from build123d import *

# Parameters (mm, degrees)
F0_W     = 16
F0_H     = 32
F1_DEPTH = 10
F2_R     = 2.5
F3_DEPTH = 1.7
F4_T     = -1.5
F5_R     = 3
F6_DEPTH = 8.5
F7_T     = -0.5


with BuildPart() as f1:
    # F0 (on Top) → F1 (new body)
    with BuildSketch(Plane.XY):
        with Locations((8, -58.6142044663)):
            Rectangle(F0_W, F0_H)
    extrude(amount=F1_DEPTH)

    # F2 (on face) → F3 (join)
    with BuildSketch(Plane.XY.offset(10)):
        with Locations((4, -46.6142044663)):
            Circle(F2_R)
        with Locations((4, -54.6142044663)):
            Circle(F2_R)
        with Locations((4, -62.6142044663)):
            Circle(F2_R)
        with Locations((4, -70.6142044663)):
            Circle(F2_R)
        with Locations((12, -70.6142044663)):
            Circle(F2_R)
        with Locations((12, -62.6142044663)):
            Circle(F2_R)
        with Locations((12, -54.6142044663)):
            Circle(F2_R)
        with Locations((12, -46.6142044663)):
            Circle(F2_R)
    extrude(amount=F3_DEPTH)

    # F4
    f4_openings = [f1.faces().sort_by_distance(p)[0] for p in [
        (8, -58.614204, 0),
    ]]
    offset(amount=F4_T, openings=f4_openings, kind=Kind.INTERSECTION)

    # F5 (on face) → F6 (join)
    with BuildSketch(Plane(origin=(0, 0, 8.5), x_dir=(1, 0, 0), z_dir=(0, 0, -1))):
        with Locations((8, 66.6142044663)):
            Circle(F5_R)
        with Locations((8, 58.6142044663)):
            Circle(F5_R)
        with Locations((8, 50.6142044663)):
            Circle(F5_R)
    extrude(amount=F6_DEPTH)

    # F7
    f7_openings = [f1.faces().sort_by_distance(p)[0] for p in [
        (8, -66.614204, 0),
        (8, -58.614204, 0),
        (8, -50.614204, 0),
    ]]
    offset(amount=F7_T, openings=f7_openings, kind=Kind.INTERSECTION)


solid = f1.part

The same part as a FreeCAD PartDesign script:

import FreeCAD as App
import Part
import Sketcher
from FreeCAD import Vector


def faces_at(feature, points):
    """Names of the faces that lie closest to the given points."""
    faces = feature.Shape.Faces
    near = lambda p: min(range(len(faces)), key=lambda i: faces[i].distToShape(Part.Vertex(*p))[0])
    return sorted({f"Face{near(p) + 1}" for p in points})


def add_polygon(sketch, points):
    """Adds a closed chain of lines whose ends are joined by coincident constraints."""
    first, n = sketch.GeometryCount, len(points)
    for a, b in zip(points, points[1:] + points[:1]):
        sketch.addGeometry(Part.LineSegment(App.Vector(*a, 0), App.Vector(*b, 0)), False)
    for i in range(n):
        sketch.addConstraint(Sketcher.Constraint("Coincident", first + i, 2, first + (i + 1) % n, 1))

doc = App.newDocument("Part")
params = doc.addObject("Spreadsheet::Sheet", "Params")
for row, (alias, value) in enumerate([
    ("sketch1_width", "16 mm"),
    ("sketch1_height", "32 mm"),
    ("pad1_length", "10 mm"),
    ("sketch2_diameter", "5 mm"),
    ("pad2_length", "1.7 mm"),
    ("thickness_wall", "1.5 mm"),
    ("sketch3_diameter", "6 mm"),
    ("pad3_length", "8.5 mm"),
    ("thickness2_wall", "0.5 mm"),
], start=1):
    params.set(f"A{row}", alias)
    params.set(f"B{row}", "=" + value)
    params.setAlias(f"B{row}", alias)

body = doc.addObject("PartDesign::Body", "Body")

# Sketch on XY plane
sketch1 = body.newObject("Sketcher::SketchObject", "Sketch")
sketch1.AttachmentSupport = (doc.getObject("XY_Plane"), [""])
sketch1.MapMode = "FlatFace"
add_polygon(sketch1, [(0, -43), (0, -75), (16, -75), (16, -43)])  # lines 0-3
sketch1.addConstraint([
    Sketcher.Constraint("Vertical", 0),
    Sketcher.Constraint("Horizontal", 1),
    Sketcher.Constraint("Vertical", 2),
    Sketcher.Constraint("Horizontal", 3),
    Sketcher.Constraint("PointOnObject", 0, 2, -2),
    Sketcher.Constraint("DistanceX", 1, 1, 1, 2, 16.0),
    Sketcher.Constraint("DistanceY", 0, 2, 0, 1, 32.0),
    Sketcher.Constraint("DistanceY", 0, 2, -1, 1, 74.614204),
])
sketch1.setExpression("Constraints[9]", "Params.sketch1_width")
sketch1.setExpression("Constraints[10]", "Params.sketch1_height")
pad1 = body.newObject("PartDesign::Pad", "Pad")
pad1.Profile = sketch1
pad1.setExpression("Length", "Params.pad1_length")

# Sketch on XY plane
sketch2 = body.newObject("Sketcher::SketchObject", "Sketch001")
sketch2.AttachmentSupport = (doc.getObject("XY_Plane"), [""])
sketch2.MapMode = "FlatFace"
sketch2.AttachmentOffset = App.Placement(Vector(0, 0, 10), App.Rotation())
sketch2.addGeometry([
    Part.Circle(Vector(4, -46.6, 0), Vector(0, 0, 1), 2.5),  # 0
    Part.Circle(Vector(4, -54.6, 0), Vector(0, 0, 1), 2.5),  # 1
    Part.Circle(Vector(4, -62.6, 0), Vector(0, 0, 1), 2.5),  # 2
    Part.Circle(Vector(4, -70.6, 0), Vector(0, 0, 1), 2.5),  # 3
    Part.Circle(Vector(12, -70.6, 0), Vector(0, 0, 1), 2.5),  # 4
    Part.Circle(Vector(12, -62.6, 0), Vector(0, 0, 1), 2.5),  # 5
    Part.Circle(Vector(12, -54.6, 0), Vector(0, 0, 1), 2.5),  # 6
    Part.Circle(Vector(12, -46.6, 0), Vector(0, 0, 1), 2.5),  # 7
], False)
sketch2.addConstraint([
    Sketcher.Constraint("Equal", 0, 1),
    Sketcher.Constraint("Equal", 1, 2),
    Sketcher.Constraint("Equal", 2, 3),
    Sketcher.Constraint("Equal", 3, 4),
    Sketcher.Constraint("Equal", 4, 5),
    Sketcher.Constraint("Equal", 5, 6),
    Sketcher.Constraint("Equal", 6, 7),
    Sketcher.Constraint("Horizontal", 3, 3, 4, 3),
    Sketcher.Constraint("Horizontal", 2, 3, 5, 3),
    Sketcher.Constraint("Horizontal", 1, 3, 6, 3),
    Sketcher.Constraint("Horizontal", 0, 3, 7, 3),
    Sketcher.Constraint("Vertical", 0, 3, 1, 3),
    Sketcher.Constraint("Vertical", 1, 3, 2, 3),
    Sketcher.Constraint("Vertical", 2, 3, 3, 3),
    Sketcher.Constraint("Vertical", 4, 3, 5, 3),
    Sketcher.Constraint("Vertical", 5, 3, 6, 3),
    Sketcher.Constraint("Vertical", 6, 3, 7, 3),
    Sketcher.Constraint("Diameter", 0, 5.0),
    Sketcher.Constraint("DistanceX", -1, 1, 0, 3, 4.0),
    Sketcher.Constraint("DistanceX", -1, 1, 4, 3, 12.0),
    Sketcher.Constraint("DistanceY", 1, 3, 0, 3, 8.0),
    Sketcher.Constraint("DistanceY", 2, 3, 1, 3, 8.0),
    Sketcher.Constraint("DistanceY", 3, 3, 2, 3, 8.0),
    Sketcher.Constraint("DistanceY", 0, 3, -1, 1, 46.614204),
])
sketch2.setExpression("Constraints[17]", "Params.sketch2_diameter")
pad2 = body.newObject("PartDesign::Pad", "Pad001")
pad2.Profile = sketch2
pad2.setExpression("Length", "Params.pad2_length")
doc.recompute()

thickness = body.newObject("PartDesign::Thickness", "Thickness")
thickness.Base = (pad2, faces_at(pad2, [(8, -58.614, 0)]))
thickness.setExpression("Value", "Params.thickness_wall")
thickness.Reversed = True
thickness.Join = "Intersection"

# Sketch on XY plane
sketch3 = body.newObject("Sketcher::SketchObject", "Sketch002")
sketch3.AttachmentSupport = (doc.getObject("XY_Plane"), [""])
sketch3.MapMode = "FlatFace"
sketch3.AttachmentOffset = App.Placement(Vector(0, 0, 8.5), App.Rotation())
sketch3.addGeometry([
    Part.Circle(Vector(8, -66.6, 0), Vector(0, 0, 1), 3),
    Part.Circle(Vector(8, -58.6, 0), Vector(0, 0, 1), 3),
    Part.Circle(Vector(8, -50.6, 0), Vector(0, 0, 1), 3),
], False)
sketch3.addConstraint([
    Sketcher.Constraint("Equal", 0, 1),
    Sketcher.Constraint("Equal", 1, 2),
    Sketcher.Constraint("Vertical", 0, 3, 1, 3),
    Sketcher.Constraint("Vertical", 1, 3, 2, 3),
    Sketcher.Constraint("Diameter", 0, 6.0),
    Sketcher.Constraint("DistanceX", -1, 1, 0, 3, 8.0),
    Sketcher.Constraint("DistanceY", 0, 3, 1, 3, 8.0),
    Sketcher.Constraint("DistanceY", 1, 3, 2, 3, 8.0),
    Sketcher.Constraint("DistanceY", 0, 3, -1, 1, 66.614204),
])
sketch3.setExpression("Constraints[4]", "Params.sketch3_diameter")
pad3 = body.newObject("PartDesign::Pad", "Pad002")
pad3.Profile = sketch3
pad3.setExpression("Length", "Params.pad3_length")
pad3.Reversed = True
doc.recompute()

thickness2 = body.newObject("PartDesign::Thickness", "Thickness001")
thickness2.Base = (pad3, faces_at(pad3, [(8, -66.614, 0), (8, -58.614, 0), (8, -50.614, 0)]))
thickness2.setExpression("Value", "Params.thickness2_wall")
thickness2.Reversed = True
thickness2.Join = "Intersection"

doc.recompute()
